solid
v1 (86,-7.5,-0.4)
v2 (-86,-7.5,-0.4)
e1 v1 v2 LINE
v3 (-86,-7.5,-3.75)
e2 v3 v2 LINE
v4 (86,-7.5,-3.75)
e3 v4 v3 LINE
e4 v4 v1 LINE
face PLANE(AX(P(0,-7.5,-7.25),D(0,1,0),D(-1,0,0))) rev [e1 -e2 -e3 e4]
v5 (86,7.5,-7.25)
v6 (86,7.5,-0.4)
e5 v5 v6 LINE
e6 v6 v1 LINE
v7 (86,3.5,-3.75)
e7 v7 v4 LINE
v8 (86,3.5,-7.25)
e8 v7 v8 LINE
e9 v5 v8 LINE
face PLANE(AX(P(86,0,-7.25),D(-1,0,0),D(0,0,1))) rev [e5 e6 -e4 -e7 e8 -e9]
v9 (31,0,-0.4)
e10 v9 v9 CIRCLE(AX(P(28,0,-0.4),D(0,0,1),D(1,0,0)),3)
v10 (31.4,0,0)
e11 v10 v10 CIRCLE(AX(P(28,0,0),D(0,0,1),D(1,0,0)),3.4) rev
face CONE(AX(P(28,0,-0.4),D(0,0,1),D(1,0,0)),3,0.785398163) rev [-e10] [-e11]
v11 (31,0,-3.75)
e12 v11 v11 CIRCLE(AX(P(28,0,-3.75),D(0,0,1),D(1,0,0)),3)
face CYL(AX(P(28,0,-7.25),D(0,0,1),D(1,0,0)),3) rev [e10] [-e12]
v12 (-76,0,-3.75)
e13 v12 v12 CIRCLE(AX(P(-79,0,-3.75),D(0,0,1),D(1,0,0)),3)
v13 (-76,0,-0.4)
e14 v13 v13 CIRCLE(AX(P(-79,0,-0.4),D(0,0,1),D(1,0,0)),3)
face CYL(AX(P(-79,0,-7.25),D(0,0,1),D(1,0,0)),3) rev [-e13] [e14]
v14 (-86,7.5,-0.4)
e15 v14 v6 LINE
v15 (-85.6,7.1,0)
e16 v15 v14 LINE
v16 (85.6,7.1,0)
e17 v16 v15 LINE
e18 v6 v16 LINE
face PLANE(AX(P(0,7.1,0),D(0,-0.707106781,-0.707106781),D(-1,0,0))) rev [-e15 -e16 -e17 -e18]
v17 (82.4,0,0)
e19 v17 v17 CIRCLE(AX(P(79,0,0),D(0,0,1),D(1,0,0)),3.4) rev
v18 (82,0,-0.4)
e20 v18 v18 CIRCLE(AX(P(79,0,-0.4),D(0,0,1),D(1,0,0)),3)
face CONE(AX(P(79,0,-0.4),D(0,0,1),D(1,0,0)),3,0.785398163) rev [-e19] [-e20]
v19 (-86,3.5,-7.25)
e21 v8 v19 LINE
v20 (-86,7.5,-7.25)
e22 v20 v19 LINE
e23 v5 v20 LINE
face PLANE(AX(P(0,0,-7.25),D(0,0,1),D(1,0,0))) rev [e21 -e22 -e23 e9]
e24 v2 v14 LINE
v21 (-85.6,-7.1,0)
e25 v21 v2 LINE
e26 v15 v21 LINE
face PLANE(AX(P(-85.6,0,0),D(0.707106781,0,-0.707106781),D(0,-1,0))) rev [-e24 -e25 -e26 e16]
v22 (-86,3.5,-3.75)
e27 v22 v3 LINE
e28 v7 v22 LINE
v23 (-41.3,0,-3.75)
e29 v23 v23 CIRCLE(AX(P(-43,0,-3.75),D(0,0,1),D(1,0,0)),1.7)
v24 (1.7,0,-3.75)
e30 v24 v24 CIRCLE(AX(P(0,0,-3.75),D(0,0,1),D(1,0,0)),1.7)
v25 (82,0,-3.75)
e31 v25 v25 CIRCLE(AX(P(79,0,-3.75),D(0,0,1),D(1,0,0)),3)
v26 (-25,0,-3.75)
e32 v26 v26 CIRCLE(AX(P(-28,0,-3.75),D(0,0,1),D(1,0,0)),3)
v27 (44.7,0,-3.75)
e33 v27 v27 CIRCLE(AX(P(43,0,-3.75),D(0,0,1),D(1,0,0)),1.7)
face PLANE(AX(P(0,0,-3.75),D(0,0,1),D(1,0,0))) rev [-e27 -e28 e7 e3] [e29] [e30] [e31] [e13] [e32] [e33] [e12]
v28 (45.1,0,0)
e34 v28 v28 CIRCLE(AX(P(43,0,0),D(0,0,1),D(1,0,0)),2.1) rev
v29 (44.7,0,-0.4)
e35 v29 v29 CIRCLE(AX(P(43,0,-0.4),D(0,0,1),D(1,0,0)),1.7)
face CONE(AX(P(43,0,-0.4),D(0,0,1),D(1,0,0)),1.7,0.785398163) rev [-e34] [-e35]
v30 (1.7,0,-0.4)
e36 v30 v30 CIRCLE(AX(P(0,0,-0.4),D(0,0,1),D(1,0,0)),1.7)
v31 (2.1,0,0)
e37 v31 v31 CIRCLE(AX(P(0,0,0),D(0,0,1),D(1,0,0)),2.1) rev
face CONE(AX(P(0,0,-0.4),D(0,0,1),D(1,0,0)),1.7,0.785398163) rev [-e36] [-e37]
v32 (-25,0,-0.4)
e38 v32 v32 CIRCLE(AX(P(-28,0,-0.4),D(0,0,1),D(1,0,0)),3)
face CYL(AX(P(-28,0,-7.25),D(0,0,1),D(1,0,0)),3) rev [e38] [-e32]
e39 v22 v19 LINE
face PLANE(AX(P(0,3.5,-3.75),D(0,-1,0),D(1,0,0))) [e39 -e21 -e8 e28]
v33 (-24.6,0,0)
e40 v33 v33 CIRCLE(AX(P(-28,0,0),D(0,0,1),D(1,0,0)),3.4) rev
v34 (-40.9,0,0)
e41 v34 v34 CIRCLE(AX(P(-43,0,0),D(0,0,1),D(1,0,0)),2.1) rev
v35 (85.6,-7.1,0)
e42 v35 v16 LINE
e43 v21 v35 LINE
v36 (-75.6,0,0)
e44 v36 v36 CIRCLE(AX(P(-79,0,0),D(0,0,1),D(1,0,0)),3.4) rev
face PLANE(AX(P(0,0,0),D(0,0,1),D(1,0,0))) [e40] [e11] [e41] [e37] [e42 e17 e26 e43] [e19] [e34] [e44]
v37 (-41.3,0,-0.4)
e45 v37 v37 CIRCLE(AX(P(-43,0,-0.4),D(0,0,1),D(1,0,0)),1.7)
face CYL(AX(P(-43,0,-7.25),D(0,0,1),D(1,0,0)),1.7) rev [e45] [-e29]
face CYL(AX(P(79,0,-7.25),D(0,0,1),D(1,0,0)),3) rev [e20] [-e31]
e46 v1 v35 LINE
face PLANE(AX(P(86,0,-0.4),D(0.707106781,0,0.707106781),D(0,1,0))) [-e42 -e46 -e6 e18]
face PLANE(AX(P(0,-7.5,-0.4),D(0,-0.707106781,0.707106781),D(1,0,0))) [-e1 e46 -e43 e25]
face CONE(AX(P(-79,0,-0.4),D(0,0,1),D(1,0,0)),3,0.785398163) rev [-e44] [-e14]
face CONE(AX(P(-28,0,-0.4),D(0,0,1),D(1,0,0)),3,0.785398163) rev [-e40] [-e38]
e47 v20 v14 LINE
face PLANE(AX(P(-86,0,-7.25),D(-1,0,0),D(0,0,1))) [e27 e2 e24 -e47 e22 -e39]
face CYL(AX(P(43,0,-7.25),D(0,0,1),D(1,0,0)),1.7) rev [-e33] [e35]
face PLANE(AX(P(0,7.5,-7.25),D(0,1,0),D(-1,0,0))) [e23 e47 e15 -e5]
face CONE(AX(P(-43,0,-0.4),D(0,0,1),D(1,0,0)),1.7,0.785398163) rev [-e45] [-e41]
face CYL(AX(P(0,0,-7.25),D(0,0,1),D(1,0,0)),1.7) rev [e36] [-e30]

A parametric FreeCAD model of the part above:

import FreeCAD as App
import Part
import Sketcher
Q = App.Units.Quantity


def edges_at(feature, points):
    """Names of the edges that pass closest to the given points."""
    edges = feature.Shape.Edges
    near = lambda p: min(range(len(edges)), key=lambda i: edges[i].distToShape(Part.Vertex(*p))[0])
    return sorted({f"Edge{near(p) + 1}" for p in points})

doc = App.newDocument("Part")
params = doc.addObject("Spreadsheet::Sheet", "Params")
for row, (alias, value) in enumerate([
    ("sketch1_width", "172 mm"),
    ("sketch1_height", "15 mm"),
    ("pad1_length", "7.25 mm"),
    ("sketch2_width", "172 mm"),
    ("sketch2_height", "11 mm"),
    ("pocket1_length", "3.5 mm"),
    ("sketch3_diameter", "6 mm"),
    ("sketch3_diameter2", "3.4 mm"),
    ("chamfer_size", "0.4 mm"),
], start=1):
    params.set(f"A{row}", alias)
    params.set(f"B{row}", "=" + value)
    params.setAlias(f"B{row}", alias)

body = doc.addObject("PartDesign::Body", "Body")

# Sketch on XY plane
sketch1 = body.newObject("Sketcher::SketchObject", "Sketch")
sketch1.AttachmentSupport = (doc.getObject("XY_Plane"), [""])
sketch1.MapMode = "FlatFace"
sketch1.addGeometry(Part.LineSegment(App.Vector(-86, 8, 0), App.Vector(-86, -8, 0)), False)
sketch1.addGeometry(Part.LineSegment(App.Vector(-86, -8, 0), App.Vector(86, -8, 0)), False)
sketch1.addGeometry(Part.LineSegment(App.Vector(86, -8, 0), App.Vector(86, 8, 0)), False)
sketch1.addGeometry(Part.LineSegment(App.Vector(86, 8, 0), App.Vector(-86, 8, 0)), False)
sketch1.addConstraint(Sketcher.Constraint("Coincident", 0, 2, 1, 1))
sketch1.addConstraint(Sketcher.Constraint("Coincident", 1, 2, 2, 1))
sketch1.addConstraint(Sketcher.Constraint("Coincident", 2, 2, 3, 1))
sketch1.addConstraint(Sketcher.Constraint("Coincident", 3, 2, 0, 1))
sketch1.addConstraint(Sketcher.Constraint("Vertical", 0))
sketch1.addConstraint(Sketcher.Constraint("Horizontal", 1))
sketch1.addConstraint(Sketcher.Constraint("Vertical", 2))
sketch1.addConstraint(Sketcher.Constraint("Horizontal", 3))
sketch1.addConstraint(Sketcher.Constraint("Symmetric", 0, 2, 2, 2, -1, 1))
sketch1.addConstraint(Sketcher.Constraint("DistanceX", 1, 1, 1, 2, Q("172 mm")))
sketch1.addConstraint(Sketcher.Constraint("DistanceY", 0, 2, 0, 1, Q("15 mm")))
sketch1.setExpression("Constraints[9]", "Params.sketch1_width")
sketch1.setExpression("Constraints[10]", "Params.sketch1_height")
pad1 = body.newObject("PartDesign::Pad", "Pad")
pad1.Profile = sketch1
pad1.setExpression("Length", "Params.pad1_length")
pad1.Reversed = True

# Sketch on XY plane
sketch2 = body.newObject("Sketcher::SketchObject", "Sketch001")
sketch2.AttachmentSupport = (doc.getObject("XY_Plane"), [""])
sketch2.MapMode = "FlatFace"
sketch2.AttachmentOffset = App.Placement(App.Vector(0, 0, -7.25), App.Rotation())
sketch2.addGeometry(Part.LineSegment(App.Vector(-86, 4, 0), App.Vector(-86, -8, 0)), False)
sketch2.addGeometry(Part.LineSegment(App.Vector(-86, -8, 0), App.Vector(86, -8, 0)), False)
sketch2.addGeometry(Part.LineSegment(App.Vector(86, -8, 0), App.Vector(86, 4, 0)), False)
sketch2.addGeometry(Part.LineSegment(App.Vector(86, 4, 0), App.Vector(-86, 4, 0)), False)
sketch2.addConstraint(Sketcher.Constraint("Coincident", 0, 2, 1, 1))
sketch2.addConstraint(Sketcher.Constraint("Coincident", 1, 2, 2, 1))
sketch2.addConstraint(Sketcher.Constraint("Coincident", 2, 2, 3, 1))
sketch2.addConstraint(Sketcher.Constraint("Coincident", 3, 2, 0, 1))
sketch2.addConstraint(Sketcher.Constraint("Vertical", 0))
sketch2.addConstraint(Sketcher.Constraint("Horizontal", 1))
sketch2.addConstraint(Sketcher.Constraint("Vertical", 2))
sketch2.addConstraint(Sketcher.Constraint("Horizontal", 3))
sketch2.addConstraint(Sketcher.Constraint("DistanceX", 1, 1, 1, 2, Q("172 mm")))
sketch2.addConstraint(Sketcher.Constraint("DistanceY", 0, 2, 0, 1, Q("11 mm")))
sketch2.addConstraint(Sketcher.Constraint("DistanceX", 0, 2, -1, 1, Q("86 mm")))
sketch2.addConstraint(Sketcher.Constraint("DistanceY", 0, 2, -1, 1, Q("7.5 mm")))
sketch2.setExpression("Constraints[8]", "Params.sketch2_width")
sketch2.setExpression("Constraints[9]", "Params.sketch2_height")
pocket1 = body.newObject("PartDesign::Pocket", "Pocket")
pocket1.Profile = sketch2
pocket1.setExpression("Length", "Params.pocket1_length")
pocket1.Reversed = True

# Sketch on XY plane
sketch3 = body.newObject("Sketcher::SketchObject", "Sketch002")
sketch3.AttachmentSupport = (doc.getObject("XY_Plane"), [""])
sketch3.MapMode = "FlatFace"
sketch3.addGeometry(Part.Circle(App.Vector(-43, 0, 0), App.Vector(0, 0, 1), 1.7), False)
sketch3.addGeometry(Part.Circle(App.Vector(0, 0, 0), App.Vector(0, 0, 1), 1.7), False)
sketch3.addGeometry(Part.Circle(App.Vector(43, 0, 0), App.Vector(0, 0, 1), 1.7), False)
sketch3.addGeometry(Part.Circle(App.Vector(-79, 0, 0), App.Vector(0, 0, 1), 3), False)
sketch3.addGeometry(Part.Circle(App.Vector(79, 0, 0), App.Vector(0, 0, 1), 3), False)
sketch3.addGeometry(Part.Circle(App.Vector(-28, 0, 0), App.Vector(0, 0, 1), 3), False)
sketch3.addGeometry(Part.Circle(App.Vector(28, 0, 0), App.Vector(0, 0, 1), 3), False)
sketch3.addConstraint(Sketcher.Constraint("Coincident", 1, 3, -1, 1))
sketch3.addConstraint(Sketcher.Constraint("Equal", 0, 1))
sketch3.addConstraint(Sketcher.Constraint("Equal", 1, 2))
sketch3.addConstraint(Sketcher.Constraint("Equal", 3, 4))
sketch3.addConstraint(Sketcher.Constraint("Equal", 4, 5))
sketch3.addConstraint(Sketcher.Constraint("Equal", 5, 6))
sketch3.addConstraint(Sketcher.Constraint("Symmetric", 0, 3, 2, 3, -1, 1))
sketch3.addConstraint(Sketcher.Constraint("Symmetric", 3, 3, 4, 3, -1, 1))
sketch3.addConstraint(Sketcher.Constraint("Symmetric", 5, 3, 6, 3, -1, 1))
sketch3.addConstraint(Sketcher.Constraint("PointOnObject", 0, 3, -1))
sketch3.addConstraint(Sketcher.Constraint("PointOnObject", 3, 3, -1))
sketch3.addConstraint(Sketcher.Constraint("PointOnObject", 5, 3, -1))
sketch3.addConstraint(Sketcher.Constraint("Diameter", 3, Q("6 mm")))
sketch3.addConstraint(Sketcher.Constraint("Diameter", 0, Q("3.4 mm")))
sketch3.addConstraint(Sketcher.Constraint("DistanceX", 0, 3, -1, 1, Q("43 mm")))
sketch3.addConstraint(Sketcher.Constraint("DistanceX", 3, 3, -1, 1, Q("79 mm")))
sketch3.addConstraint(Sketcher.Constraint("DistanceX", 5, 3, -1, 1, Q("28 mm")))
sketch3.setExpression("Constraints[12]", "Params.sketch3_diameter")
sketch3.setExpression("Constraints[13]", "Params.sketch3_diameter2")
pocket2 = body.newObject("PartDesign::Pocket", "Pocket001")
pocket2.Profile = sketch3
pocket2.Type = "ThroughAll"
pocket2.Midplane = True
doc.recompute()

chamfer = body.newObject("PartDesign::Chamfer", "Chamfer")
chamfer.Base = (pocket2, edges_at(pocket2, [
    (76, 0, 0),
    (-82, 0, 0),
    (41.3, 0, 0),
    (-44.7, 0, 0),
    (-31, 0, 0),
    (25, 0, 0),
    (-1.7, 0, 0),
    (0, -7.5, 0),
    (-86, 0, 0),
    (0, 7.5, 0),
    (86, 0, 0),
]))
chamfer.setExpression("Size", "Params.chamfer_size")

doc.recompute()
